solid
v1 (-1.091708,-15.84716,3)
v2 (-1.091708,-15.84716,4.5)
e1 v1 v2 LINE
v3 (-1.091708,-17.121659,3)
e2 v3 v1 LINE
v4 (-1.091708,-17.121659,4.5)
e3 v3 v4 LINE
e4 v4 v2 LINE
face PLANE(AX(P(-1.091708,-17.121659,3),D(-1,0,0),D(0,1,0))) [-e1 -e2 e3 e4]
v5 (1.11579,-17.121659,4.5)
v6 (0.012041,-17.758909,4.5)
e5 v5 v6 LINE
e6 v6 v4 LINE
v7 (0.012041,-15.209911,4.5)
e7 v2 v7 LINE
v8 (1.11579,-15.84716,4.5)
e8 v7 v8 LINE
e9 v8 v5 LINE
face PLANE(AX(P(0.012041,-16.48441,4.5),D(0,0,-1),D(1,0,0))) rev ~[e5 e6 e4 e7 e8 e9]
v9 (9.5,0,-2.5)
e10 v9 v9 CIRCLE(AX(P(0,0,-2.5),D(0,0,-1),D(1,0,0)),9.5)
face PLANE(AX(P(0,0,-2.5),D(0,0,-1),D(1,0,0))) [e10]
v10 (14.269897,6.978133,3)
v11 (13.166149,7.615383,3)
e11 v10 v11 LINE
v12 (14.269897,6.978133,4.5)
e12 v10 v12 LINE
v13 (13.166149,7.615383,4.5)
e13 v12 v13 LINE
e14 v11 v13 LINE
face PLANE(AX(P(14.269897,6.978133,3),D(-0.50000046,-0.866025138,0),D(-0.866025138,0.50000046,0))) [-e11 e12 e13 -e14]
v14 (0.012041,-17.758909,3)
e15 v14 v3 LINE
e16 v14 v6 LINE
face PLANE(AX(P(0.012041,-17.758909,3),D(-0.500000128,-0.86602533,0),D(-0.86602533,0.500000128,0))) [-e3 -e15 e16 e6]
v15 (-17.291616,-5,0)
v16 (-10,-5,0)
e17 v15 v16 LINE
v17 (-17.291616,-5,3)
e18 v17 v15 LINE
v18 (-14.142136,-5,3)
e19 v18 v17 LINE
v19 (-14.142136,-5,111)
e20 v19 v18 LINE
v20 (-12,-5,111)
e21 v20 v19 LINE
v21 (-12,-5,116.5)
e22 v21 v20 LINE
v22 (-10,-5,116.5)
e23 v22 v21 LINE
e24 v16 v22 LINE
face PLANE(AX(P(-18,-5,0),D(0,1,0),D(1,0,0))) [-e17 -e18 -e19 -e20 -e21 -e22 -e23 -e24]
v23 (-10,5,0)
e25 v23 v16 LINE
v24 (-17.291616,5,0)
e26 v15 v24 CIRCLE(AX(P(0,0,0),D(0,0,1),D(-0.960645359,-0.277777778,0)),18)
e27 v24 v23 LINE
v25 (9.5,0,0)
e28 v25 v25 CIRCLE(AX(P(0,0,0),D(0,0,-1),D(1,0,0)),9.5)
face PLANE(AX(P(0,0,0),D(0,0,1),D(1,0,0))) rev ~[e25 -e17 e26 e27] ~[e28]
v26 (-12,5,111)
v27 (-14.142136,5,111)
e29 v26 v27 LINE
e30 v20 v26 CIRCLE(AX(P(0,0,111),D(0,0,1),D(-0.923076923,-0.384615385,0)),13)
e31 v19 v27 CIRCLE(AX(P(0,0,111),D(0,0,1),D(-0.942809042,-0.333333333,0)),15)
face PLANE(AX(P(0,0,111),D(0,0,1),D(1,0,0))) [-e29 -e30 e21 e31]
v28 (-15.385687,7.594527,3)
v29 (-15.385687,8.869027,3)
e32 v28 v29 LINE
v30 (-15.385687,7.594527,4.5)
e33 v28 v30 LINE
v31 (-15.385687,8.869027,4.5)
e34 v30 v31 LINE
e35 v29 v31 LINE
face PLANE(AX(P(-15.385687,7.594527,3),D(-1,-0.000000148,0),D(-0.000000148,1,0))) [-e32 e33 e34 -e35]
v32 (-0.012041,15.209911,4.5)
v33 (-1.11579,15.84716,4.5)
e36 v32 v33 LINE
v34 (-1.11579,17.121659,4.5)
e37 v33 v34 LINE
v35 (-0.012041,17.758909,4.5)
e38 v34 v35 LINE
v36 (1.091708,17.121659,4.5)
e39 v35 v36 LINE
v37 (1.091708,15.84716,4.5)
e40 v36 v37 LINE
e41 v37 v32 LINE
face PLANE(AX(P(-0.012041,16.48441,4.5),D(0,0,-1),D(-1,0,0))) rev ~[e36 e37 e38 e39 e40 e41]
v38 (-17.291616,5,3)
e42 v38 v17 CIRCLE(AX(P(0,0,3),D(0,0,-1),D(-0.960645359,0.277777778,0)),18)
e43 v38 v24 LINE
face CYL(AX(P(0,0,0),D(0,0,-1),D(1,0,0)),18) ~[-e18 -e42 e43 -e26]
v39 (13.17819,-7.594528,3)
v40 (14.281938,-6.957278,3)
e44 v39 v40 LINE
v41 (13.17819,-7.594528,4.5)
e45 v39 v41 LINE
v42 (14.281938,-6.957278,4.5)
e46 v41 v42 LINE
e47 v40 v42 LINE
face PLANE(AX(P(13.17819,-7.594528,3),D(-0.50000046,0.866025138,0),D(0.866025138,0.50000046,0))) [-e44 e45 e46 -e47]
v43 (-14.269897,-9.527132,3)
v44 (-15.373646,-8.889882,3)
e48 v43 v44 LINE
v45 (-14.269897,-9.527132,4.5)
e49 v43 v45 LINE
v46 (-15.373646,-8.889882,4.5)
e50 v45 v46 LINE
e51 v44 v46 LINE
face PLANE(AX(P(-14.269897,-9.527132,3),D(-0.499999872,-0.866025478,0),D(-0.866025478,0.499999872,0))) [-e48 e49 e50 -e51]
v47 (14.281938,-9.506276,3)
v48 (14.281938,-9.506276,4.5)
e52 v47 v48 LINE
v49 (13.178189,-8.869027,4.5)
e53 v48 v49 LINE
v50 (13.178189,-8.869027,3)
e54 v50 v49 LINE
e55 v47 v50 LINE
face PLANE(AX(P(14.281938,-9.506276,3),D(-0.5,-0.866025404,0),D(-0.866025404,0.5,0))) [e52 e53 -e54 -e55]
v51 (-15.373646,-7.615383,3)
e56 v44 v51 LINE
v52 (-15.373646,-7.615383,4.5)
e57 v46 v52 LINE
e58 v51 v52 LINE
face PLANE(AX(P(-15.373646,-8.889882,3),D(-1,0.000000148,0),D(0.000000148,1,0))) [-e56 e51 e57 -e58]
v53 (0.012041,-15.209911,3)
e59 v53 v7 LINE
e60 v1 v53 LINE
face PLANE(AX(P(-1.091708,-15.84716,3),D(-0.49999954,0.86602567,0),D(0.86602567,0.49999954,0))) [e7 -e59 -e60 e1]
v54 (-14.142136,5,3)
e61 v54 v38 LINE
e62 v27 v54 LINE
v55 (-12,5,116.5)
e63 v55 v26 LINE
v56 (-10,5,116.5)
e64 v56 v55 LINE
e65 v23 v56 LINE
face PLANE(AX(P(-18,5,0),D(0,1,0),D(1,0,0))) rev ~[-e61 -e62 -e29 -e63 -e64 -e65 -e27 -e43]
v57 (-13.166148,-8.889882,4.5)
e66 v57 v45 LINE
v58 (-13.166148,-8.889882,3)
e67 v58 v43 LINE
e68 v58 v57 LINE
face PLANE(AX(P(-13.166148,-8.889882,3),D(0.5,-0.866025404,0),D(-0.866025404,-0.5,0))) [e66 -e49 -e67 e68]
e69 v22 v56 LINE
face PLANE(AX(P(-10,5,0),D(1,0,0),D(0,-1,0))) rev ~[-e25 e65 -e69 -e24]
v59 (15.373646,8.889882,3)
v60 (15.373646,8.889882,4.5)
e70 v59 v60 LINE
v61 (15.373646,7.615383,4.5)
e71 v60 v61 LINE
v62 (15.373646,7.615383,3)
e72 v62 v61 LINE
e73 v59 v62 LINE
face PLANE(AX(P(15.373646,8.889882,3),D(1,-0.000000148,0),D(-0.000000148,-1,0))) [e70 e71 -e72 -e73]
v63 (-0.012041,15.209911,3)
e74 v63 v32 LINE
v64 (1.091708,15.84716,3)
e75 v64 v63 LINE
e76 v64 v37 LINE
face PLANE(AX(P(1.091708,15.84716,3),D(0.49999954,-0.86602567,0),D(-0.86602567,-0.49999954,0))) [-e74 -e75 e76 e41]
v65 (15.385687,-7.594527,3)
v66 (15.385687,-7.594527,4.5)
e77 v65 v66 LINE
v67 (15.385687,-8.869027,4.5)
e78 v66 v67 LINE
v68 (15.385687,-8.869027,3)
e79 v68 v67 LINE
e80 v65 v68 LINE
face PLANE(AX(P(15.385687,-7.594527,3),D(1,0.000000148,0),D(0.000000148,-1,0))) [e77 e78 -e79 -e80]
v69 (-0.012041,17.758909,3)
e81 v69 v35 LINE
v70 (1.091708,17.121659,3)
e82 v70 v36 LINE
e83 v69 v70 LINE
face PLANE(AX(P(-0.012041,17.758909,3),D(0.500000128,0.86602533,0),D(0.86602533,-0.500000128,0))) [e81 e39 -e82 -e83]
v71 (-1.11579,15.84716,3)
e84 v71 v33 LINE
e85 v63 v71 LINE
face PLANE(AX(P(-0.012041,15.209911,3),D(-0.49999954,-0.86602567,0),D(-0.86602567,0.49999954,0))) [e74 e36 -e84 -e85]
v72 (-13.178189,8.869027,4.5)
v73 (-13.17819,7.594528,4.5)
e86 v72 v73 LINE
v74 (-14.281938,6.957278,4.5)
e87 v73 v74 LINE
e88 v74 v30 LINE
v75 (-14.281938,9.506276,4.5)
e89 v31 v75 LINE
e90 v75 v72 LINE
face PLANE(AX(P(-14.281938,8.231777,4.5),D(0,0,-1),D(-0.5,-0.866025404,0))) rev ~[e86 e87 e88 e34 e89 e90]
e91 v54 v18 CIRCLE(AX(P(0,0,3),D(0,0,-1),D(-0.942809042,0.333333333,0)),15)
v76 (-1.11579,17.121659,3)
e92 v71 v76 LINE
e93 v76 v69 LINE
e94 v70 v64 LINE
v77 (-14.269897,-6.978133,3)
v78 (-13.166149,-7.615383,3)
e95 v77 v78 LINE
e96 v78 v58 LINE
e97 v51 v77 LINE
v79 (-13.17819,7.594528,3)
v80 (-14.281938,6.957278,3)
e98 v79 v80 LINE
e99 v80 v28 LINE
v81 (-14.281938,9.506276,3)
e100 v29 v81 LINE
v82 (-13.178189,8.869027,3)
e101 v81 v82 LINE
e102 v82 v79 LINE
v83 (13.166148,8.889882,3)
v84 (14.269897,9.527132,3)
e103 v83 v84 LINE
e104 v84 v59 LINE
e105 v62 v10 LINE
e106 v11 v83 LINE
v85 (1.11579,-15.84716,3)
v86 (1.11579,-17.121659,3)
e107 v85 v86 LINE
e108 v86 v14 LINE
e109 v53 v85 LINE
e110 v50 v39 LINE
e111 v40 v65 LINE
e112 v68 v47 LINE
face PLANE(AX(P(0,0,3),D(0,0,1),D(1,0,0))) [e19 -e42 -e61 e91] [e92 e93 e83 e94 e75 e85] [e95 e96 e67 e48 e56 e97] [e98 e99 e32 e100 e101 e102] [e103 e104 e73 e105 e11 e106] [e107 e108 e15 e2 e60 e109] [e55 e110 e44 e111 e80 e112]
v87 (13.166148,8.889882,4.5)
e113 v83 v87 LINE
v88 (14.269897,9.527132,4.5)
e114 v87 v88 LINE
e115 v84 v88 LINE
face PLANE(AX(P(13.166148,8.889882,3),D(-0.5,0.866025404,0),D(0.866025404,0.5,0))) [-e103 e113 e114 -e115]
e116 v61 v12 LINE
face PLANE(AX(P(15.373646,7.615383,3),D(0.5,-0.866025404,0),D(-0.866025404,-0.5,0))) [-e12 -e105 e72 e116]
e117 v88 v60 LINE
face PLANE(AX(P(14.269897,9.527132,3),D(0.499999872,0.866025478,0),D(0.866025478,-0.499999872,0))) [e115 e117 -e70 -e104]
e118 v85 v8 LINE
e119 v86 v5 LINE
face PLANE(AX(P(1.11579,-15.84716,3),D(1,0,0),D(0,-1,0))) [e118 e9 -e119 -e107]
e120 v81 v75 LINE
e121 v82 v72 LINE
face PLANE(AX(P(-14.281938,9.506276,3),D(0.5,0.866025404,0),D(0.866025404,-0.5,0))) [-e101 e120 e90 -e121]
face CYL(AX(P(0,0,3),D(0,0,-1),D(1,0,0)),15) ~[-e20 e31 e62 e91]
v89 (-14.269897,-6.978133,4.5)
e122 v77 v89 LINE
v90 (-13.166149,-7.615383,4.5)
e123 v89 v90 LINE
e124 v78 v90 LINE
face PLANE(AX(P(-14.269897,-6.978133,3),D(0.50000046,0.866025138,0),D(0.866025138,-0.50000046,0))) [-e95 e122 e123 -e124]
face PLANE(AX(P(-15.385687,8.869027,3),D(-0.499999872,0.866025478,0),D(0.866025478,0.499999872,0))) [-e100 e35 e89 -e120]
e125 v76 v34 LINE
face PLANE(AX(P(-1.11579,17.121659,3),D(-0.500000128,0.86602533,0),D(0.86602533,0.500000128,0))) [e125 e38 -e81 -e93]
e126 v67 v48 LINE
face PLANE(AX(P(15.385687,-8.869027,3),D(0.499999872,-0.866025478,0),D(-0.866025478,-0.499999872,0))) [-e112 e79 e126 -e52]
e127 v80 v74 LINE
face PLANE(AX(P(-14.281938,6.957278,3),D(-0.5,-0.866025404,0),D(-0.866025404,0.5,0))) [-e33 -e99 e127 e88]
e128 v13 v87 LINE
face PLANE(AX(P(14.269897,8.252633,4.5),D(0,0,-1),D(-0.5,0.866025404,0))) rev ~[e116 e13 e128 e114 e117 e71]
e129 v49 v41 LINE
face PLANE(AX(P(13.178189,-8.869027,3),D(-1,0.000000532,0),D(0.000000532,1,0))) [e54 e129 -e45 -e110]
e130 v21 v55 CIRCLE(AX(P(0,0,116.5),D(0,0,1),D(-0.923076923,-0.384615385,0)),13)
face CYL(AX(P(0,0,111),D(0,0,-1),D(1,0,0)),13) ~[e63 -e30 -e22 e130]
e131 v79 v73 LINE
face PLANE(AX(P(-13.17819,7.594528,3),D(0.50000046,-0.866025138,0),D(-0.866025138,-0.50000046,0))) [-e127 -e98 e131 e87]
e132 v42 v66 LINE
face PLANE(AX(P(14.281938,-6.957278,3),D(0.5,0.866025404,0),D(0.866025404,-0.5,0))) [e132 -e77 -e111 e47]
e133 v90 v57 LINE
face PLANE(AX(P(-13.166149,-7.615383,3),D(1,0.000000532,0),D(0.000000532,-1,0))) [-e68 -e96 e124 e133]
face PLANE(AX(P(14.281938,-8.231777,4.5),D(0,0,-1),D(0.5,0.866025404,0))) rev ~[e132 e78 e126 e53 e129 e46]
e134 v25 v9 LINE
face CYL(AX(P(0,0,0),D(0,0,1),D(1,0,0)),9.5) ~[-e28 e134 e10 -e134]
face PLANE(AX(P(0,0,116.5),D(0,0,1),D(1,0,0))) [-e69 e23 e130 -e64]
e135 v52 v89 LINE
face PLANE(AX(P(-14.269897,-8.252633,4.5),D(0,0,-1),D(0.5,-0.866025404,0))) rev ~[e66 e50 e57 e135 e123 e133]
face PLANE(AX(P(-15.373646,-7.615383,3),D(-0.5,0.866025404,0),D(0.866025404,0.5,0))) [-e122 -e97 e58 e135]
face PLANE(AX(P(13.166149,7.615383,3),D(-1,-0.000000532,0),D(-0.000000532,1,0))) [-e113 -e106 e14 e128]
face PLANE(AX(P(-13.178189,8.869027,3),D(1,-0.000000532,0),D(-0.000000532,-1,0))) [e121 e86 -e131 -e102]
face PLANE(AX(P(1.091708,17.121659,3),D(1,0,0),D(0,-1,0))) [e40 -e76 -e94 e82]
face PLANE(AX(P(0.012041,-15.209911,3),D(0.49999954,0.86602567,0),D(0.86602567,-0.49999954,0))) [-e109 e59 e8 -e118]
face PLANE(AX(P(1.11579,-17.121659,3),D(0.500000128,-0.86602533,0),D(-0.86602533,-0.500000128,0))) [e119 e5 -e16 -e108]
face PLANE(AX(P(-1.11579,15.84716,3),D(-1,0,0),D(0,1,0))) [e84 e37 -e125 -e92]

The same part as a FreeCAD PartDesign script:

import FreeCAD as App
import Part
import Sketcher

V = App.Vector
Q = App.Units.Quantity


def add_polygon(sketch, points):
    """Adds a closed chain of lines whose ends are joined by coincident constraints."""
    first, n = sketch.GeometryCount, len(points)
    for a, b in zip(points, points[1:] + points[:1]):
        sketch.addGeometry(Part.LineSegment(App.Vector(*a, 0), App.Vector(*b, 0)), False)
    for i in range(n):
        sketch.addConstraint(Sketcher.Constraint("Coincident", first + i, 2, first + (i + 1) % n, 1))

doc = App.newDocument("Part")
params = doc.addObject("Spreadsheet::Sheet", "Params")
for row, (alias, value) in enumerate([
    ("sketch1_diameter", "36 mm"),
    ("pad1_length", "3 mm"),
    ("sketch2_diameter", "30 mm"),
    ("pad2_length", "108 mm"),
    ("sketch3_diameter", "19 mm"),
    ("pad3_length", "2.5 mm"),
    ("sketch4_diameter", "26 mm"),
    ("pad4_length", "5.5 mm"),
    ("pad5_length", "1.5 mm"),
    ("sketch6_width", "8 mm"),
    ("sketch6_height", "10 mm"),
    ("pocket1_length", "118 mm"),
], start=1):
    params.set(f"A{row}", alias)
    params.set(f"B{row}", "=" + value)
    params.setAlias(f"B{row}", alias)

body = doc.addObject("PartDesign::Body", "Body")

# Sketch on XY plane
sketch1 = body.newObject("Sketcher::SketchObject", "Sketch")
sketch1.AttachmentSupport = (doc.getObject("XY_Plane"), [""])
sketch1.MapMode = "FlatFace"
sketch1.addGeometry(Part.Circle(V(0, 0, 0), V(0, 0, 1), 18), False)
sketch1.addConstraint([
    Sketcher.Constraint("Coincident", 0, 3, -1, 1),
    Sketcher.Constraint("Diameter", 0, Q("36 mm")),
])
sketch1.setExpression("Constraints[1]", "Params.sketch1_diameter")
pad1 = body.newObject("PartDesign::Pad", "Pad")
pad1.Profile = sketch1
pad1.setExpression("Length", "Params.pad1_length")

# Sketch on XY plane
sketch2 = body.newObject("Sketcher::SketchObject", "Sketch001")
sketch2.AttachmentSupport = (doc.getObject("XY_Plane"), [""])
sketch2.MapMode = "FlatFace"
sketch2.AttachmentOffset = App.Placement(V(0, 0, 3), App.Rotation())
sketch2.addGeometry(Part.Circle(V(0, 0, 0), V(0, 0, 1), 15), False)
sketch2.addConstraint([
    Sketcher.Constraint("Coincident", 0, 3, -1, 1),
    Sketcher.Constraint("Diameter", 0, Q("30 mm")),
])
sketch2.setExpression("Constraints[1]", "Params.sketch2_diameter")
pad2 = body.newObject("PartDesign::Pad", "Pad001")
pad2.Profile = sketch2
pad2.setExpression("Length", "Params.pad2_length")

# Sketch on XY plane
sketch3 = body.newObject("Sketcher::SketchObject", "Sketch002")
sketch3.AttachmentSupport = (doc.getObject("XY_Plane"), [""])
sketch3.MapMode = "FlatFace"
sketch3.addGeometry(Part.Circle(V(0, 0, 0), V(0, 0, 1), 10), False)
sketch3.addConstraint([
    Sketcher.Constraint("Coincident", 0, 3, -1, 1),
    Sketcher.Constraint("Diameter", 0, Q("19 mm")),
])
sketch3.setExpression("Constraints[1]", "Params.sketch3_diameter")
pad3 = body.newObject("PartDesign::Pad", "Pad002")
pad3.Profile = sketch3
pad3.setExpression("Length", "Params.pad3_length")
pad3.Reversed = True

# Sketch on XY plane
sketch4 = body.newObject("Sketcher::SketchObject", "Sketch003")
sketch4.AttachmentSupport = (doc.getObject("XY_Plane"), [""])
sketch4.MapMode = "FlatFace"
sketch4.AttachmentOffset = App.Placement(V(0, 0, 111), App.Rotation())
sketch4.addGeometry(Part.Circle(V(0, 0, 0), V(0, 0, 1), 13), False)
sketch4.addConstraint([
    Sketcher.Constraint("Coincident", 0, 3, -1, 1),
    Sketcher.Constraint("Diameter", 0, Q("26 mm")),
])
sketch4.setExpression("Constraints[1]", "Params.sketch4_diameter")
pad4 = body.newObject("PartDesign::Pad", "Pad003")
pad4.Profile = sketch4
pad4.setExpression("Length", "Params.pad4_length")

# Sketch on XY plane
sketch5 = body.newObject("Sketcher::SketchObject", "Sketch004")
sketch5.AttachmentSupport = (doc.getObject("XY_Plane"), [""])
sketch5.MapMode = "FlatFace"
sketch5.AttachmentOffset = App.Placement(V(0, 0, 3), App.Rotation())
add_polygon(sketch5, [(0, 17.8), (-1.1, 17.1), (-1.1, 15.8), (0, 15.2), (1.1, 15.8), (1.1, 17.1)])  # lines 0-5
sketch5.addConstraint([
    Sketcher.Constraint("Vertical", 1),
    Sketcher.Constraint("Vertical", 4),
    Sketcher.Constraint("Parallel", 0, 3),
    Sketcher.Constraint("Parallel", 2, 5),
    Sketcher.Constraint("Horizontal", 1, 2, 3, 2),
    Sketcher.Constraint("Horizontal", 0, 2, 4, 2),
    Sketcher.Constraint("Vertical", 2, 2, 5, 2),
    Sketcher.Constraint("Angle", 0, Q("-149.999992 deg")),
    Sketcher.Constraint("DistanceY", 1, 2, 1, 1, Q("1.274499 mm")),
    Sketcher.Constraint("Distance", 0, Q("1.2745 mm")),
    Sketcher.Constraint("DistanceX", 0, 2, -1, 1, Q("1.11579 mm")),
    Sketcher.Constraint("DistanceY", -1, 1, 0, 2, Q("17.121659 mm")),
])
pad5 = body.newObject("PartDesign::Pad", "Pad004")
pad5.Profile = sketch5
pad5.setExpression("Length", "Params.pad5_length")
doc.recompute()

polarpattern = body.newObject("PartDesign::PolarPattern", "PolarPattern")
polarpattern.Originals = [pad5]
polarpattern.Axis = (doc.getObject("Z_Axis"), [""])
polarpattern.Angle = 360
polarpattern.Occurrences = 6
body.Tip = polarpattern

# Sketch on XY plane
sketch6 = body.newObject("Sketcher::SketchObject", "Sketch005")
sketch6.AttachmentSupport = (doc.getObject("XY_Plane"), [""])
sketch6.MapMode = "FlatFace"
add_polygon(sketch6, [(-18, -5), (-18, 5), (-10, 5), (-10, -5)])  # lines 0-3
sketch6.addConstraint([
    Sketcher.Constraint("Vertical", 0),
    Sketcher.Constraint("Horizontal", 1),
    Sketcher.Constraint("Vertical", 2),
    Sketcher.Constraint("Horizontal", 3),
    Sketcher.Constraint("DistanceX", 1, 1, 1, 2, Q("8 mm")),
    Sketcher.Constraint("DistanceY", 0, 1, 0, 2, Q("10 mm")),
    Sketcher.Constraint("DistanceX", 0, 2, -1, 1, Q("18 mm")),
    Sketcher.Constraint("DistanceY", -1, 1, 0, 2, Q("5 mm")),
])
sketch6.setExpression("Constraints[8]", "Params.sketch6_width")
sketch6.setExpression("Constraints[9]", "Params.sketch6_height")
pocket1 = body.newObject("PartDesign::Pocket", "Pocket")
pocket1.Profile = sketch6
pocket1.setExpression("Length", "Params.pocket1_length")
pocket1.Reversed = True

doc.recompute()
